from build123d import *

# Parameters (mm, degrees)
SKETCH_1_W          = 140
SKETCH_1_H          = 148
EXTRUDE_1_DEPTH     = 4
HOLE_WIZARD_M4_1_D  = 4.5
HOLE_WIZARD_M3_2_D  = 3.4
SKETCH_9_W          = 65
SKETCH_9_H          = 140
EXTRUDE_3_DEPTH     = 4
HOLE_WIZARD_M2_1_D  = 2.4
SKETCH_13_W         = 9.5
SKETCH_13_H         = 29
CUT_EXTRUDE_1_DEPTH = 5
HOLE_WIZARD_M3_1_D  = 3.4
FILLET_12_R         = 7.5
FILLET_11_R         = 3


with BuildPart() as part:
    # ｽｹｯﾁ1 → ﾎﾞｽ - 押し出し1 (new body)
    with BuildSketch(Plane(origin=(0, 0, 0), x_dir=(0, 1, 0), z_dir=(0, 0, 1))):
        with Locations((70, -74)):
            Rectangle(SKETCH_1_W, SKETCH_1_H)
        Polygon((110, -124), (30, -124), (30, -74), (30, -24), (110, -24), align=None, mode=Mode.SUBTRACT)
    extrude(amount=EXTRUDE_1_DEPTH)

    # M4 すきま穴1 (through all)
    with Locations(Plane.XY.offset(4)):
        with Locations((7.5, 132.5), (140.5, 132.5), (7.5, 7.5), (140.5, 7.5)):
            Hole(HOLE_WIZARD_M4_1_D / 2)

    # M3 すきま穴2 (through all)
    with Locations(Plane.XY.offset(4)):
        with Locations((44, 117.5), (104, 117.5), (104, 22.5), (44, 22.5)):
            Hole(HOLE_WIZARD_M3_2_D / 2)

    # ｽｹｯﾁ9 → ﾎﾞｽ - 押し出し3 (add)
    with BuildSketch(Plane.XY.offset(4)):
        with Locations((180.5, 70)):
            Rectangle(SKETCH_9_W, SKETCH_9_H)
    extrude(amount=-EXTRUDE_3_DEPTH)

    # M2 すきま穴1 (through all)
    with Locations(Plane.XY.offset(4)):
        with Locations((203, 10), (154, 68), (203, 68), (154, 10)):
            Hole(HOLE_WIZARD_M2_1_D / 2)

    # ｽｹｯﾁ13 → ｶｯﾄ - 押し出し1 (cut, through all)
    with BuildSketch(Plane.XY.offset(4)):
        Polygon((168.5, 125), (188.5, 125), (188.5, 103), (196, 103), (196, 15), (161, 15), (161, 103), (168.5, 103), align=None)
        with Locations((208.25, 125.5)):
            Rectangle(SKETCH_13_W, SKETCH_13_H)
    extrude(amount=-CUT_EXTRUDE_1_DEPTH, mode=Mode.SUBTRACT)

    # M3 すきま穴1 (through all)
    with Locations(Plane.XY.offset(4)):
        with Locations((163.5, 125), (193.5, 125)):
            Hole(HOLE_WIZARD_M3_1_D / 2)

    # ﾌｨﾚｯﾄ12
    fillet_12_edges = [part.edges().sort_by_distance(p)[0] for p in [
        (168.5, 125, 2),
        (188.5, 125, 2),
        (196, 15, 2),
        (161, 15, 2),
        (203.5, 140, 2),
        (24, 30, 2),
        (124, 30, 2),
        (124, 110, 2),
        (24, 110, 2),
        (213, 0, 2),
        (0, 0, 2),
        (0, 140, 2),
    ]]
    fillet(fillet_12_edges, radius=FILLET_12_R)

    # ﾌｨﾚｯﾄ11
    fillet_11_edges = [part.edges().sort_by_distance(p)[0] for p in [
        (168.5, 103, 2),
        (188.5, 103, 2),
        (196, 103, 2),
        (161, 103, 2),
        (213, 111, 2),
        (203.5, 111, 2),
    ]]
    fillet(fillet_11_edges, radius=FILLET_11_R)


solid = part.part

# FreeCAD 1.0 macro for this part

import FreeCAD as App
import Part
import Sketcher
from FreeCAD import Vector


def edges_at(feature, points):
    """Names of the edges that pass closest to the given points."""
    edges = feature.Shape.Edges
    near = lambda p: min(range(len(edges)), key=lambda i: edges[i].distToShape(Part.Vertex(*p))[0])
    return sorted({f"Edge{near(p) + 1}" for p in points})


def add_polygon(sketch, points):
    """Adds a closed chain of lines whose ends are joined by coincident constraints."""
    first, n = sketch.GeometryCount, len(points)
    for a, b in zip(points, points[1:] + points[:1]):
        sketch.addGeometry(Part.LineSegment(App.Vector(*a, 0), App.Vector(*b, 0)), False)
    for i in range(n):
        sketch.addConstraint(Sketcher.Constraint("Coincident", first + i, 2, first + (i + 1) % n, 1))

doc = App.newDocument("Part")
body = doc.addObject("PartDesign::Body", "Body")

sketch1 = body.newObject("Sketcher::SketchObject", "Sketch")
sketch1.AttachmentSupport = (doc.getObject("XY_Plane"), [""])
sketch1.MapMode = "FlatFace"
add_polygon(sketch1, [(0, 0), (148, 0), (148, 140), (0, 140)])
add_polygon(sketch1, [(24, 110), (124, 110), (124, 30), (24, 30)])
sketch1.addConstraint(Sketcher.Constraint("Horizontal", 0))
sketch1.addConstraint(Sketcher.Constraint("Vertical", 1))
sketch1.addConstraint(Sketcher.Constraint("Horizontal", 2))
sketch1.addConstraint(Sketcher.Constraint("Vertical", 3))
sketch1.addConstraint(Sketcher.Constraint("Horizontal", 4))
sketch1.addConstraint(Sketcher.Constraint("Vertical", 5))
sketch1.addConstraint(Sketcher.Constraint("Horizontal", 6))
sketch1.addConstraint(Sketcher.Constraint("Vertical", 7))
sketch1.addConstraint(Sketcher.Constraint("Coincident", 3, 2, -1, 1))
sketch1.addConstraint(Sketcher.Constraint("DistanceX", 0, 1, 0, 2, 148.0))
sketch1.addConstraint(Sketcher.Constraint("DistanceX", 4, 1, 4, 2, 100.0))
sketch1.addConstraint(Sketcher.Constraint("DistanceY", 1, 1, 1, 2, 140.0))
sketch1.addConstraint(Sketcher.Constraint("DistanceY", 5, 2, 5, 1, 80.0))
sketch1.addConstraint(Sketcher.Constraint("DistanceX", -1, 1, 4, 2, 124.0))
sketch1.addConstraint(Sketcher.Constraint("DistanceY", -1, 1, 4, 2, 110.0))
pad1 = body.newObject("PartDesign::Pad", "Pad")
pad1.Profile = sketch1
pad1.Length = 4

sketch2 = body.newObject("Sketcher::SketchObject", "Sketch001")
sketch2.AttachmentSupport = (doc.getObject("XY_Plane"), [""])
sketch2.MapMode = "FlatFace"
sketch2.AttachmentOffset = App.Placement(Vector(0, 0, 4), App.Rotation())
sketch2.addGeometry(Part.Circle(Vector(7.5, 132.5, 0), Vector(0, 0, 1), 2.25), False)
sketch2.addGeometry(Part.Circle(Vector(140.5, 132.5, 0), Vector(0, 0, 1), 2.25), False)
sketch2.addGeometry(Part.Circle(Vector(7.5, 7.5, 0), Vector(0, 0, 1), 2.25), False)
sketch2.addGeometry(Part.Circle(Vector(140.5, 7.5, 0), Vector(0, 0, 1), 2.25), False)
sketch2.addConstraint(Sketcher.Constraint("Equal", 0, 1))
sketch2.addConstraint(Sketcher.Constraint("Equal", 1, 2))
sketch2.addConstraint(Sketcher.Constraint("Equal", 2, 3))
sketch2.addConstraint(Sketcher.Constraint("Horizontal", 0, 3, 1, 3))
sketch2.addConstraint(Sketcher.Constraint("Horizontal", 2, 3, 3, 3))
sketch2.addConstraint(Sketcher.Constraint("Vertical", 0, 3, 2, 3))
sketch2.addConstraint(Sketcher.Constraint("Vertical", 1, 3, 3, 3))
sketch2.addConstraint(Sketcher.Constraint("Diameter", 0, 4.5))
sketch2.addConstraint(Sketcher.Constraint("DistanceX", 0, 3, 1, 3, 133.0))
sketch2.addConstraint(Sketcher.Constraint("DistanceY", 2, 3, 0, 3, 125.0))
sketch2.addConstraint(Sketcher.Constraint("DistanceX", -1, 1, 0, 3, 7.5))
sketch2.addConstraint(Sketcher.Constraint("DistanceY", -1, 1, 0, 3, 132.5))
doc.recompute()
hole = body.newObject("PartDesign::Hole", "Hole")
hole.Profile = sketch2
hole.ThreadType = "None"
hole.Diameter = 4.5
hole.DepthType = "ThroughAll"

sketch3 = body.newObject("Sketcher::SketchObject", "Sketch002")
sketch3.AttachmentSupport = (doc.getObject("XY_Plane"), [""])
sketch3.MapMode = "FlatFace"
sketch3.AttachmentOffset = App.Placement(Vector(0, 0, 4), App.Rotation())
sketch3.addGeometry(Part.Circle(Vector(44, 117.5, 0), Vector(0, 0, 1), 1.7), False)
sketch3.addGeometry(Part.Circle(Vector(104, 117.5, 0), Vector(0, 0, 1), 1.7), False)
sketch3.addGeometry(Part.Circle(Vector(104, 22.5, 0), Vector(0, 0, 1), 1.7), False)
sketch3.addGeometry(Part.Circle(Vector(44, 22.5, 0), Vector(0, 0, 1), 1.7), False)
sketch3.addConstraint(Sketcher.Constraint("Equal", 0, 1))
sketch3.addConstraint(Sketcher.Constraint("Equal", 1, 2))
sketch3.addConstraint(Sketcher.Constraint("Equal", 2, 3))
sketch3.addConstraint(Sketcher.Constraint("Horizontal", 0, 3, 1, 3))
sketch3.addConstraint(Sketcher.Constraint("Horizontal", 2, 3, 3, 3))
sketch3.addConstraint(Sketcher.Constraint("Vertical", 1, 3, 2, 3))
sketch3.addConstraint(Sketcher.Constraint("Vertical", 0, 3, 3, 3))
sketch3.addConstraint(Sketcher.Constraint("Diameter", 0, 3.4))
sketch3.addConstraint(Sketcher.Constraint("DistanceX", -1, 1, 0, 3, 44.0))
sketch3.addConstraint(Sketcher.Constraint("DistanceX", -1, 1, 1, 3, 104.0))
sketch3.addConstraint(Sketcher.Constraint("DistanceY", 2, 3, 1, 3, 95.0))
sketch3.addConstraint(Sketcher.Constraint("DistanceY", -1, 1, 0, 3, 117.5))
doc.recompute()
hole2 = body.newObject("PartDesign::Hole", "Hole001")
hole2.Profile = sketch3
hole2.ThreadType = "None"
hole2.Diameter = 3.4
hole2.DepthType = "ThroughAll"

sketch4 = body.newObject("Sketcher::SketchObject", "Sketch003")
sketch4.AttachmentSupport = (doc.getObject("XY_Plane"), [""])
sketch4.MapMode = "FlatFace"
sketch4.AttachmentOffset = App.Placement(Vector(0, 0, 4), App.Rotation())
add_polygon(sketch4, [(148, 140), (148, 0), (213, 0), (213, 140)])
sketch4.addConstraint(Sketcher.Constraint("Vertical", 0))
sketch4.addConstraint(Sketcher.Constraint("Horizontal", 1))
sketch4.addConstraint(Sketcher.Constraint("Vertical", 2))
sketch4.addConstraint(Sketcher.Constraint("Horizontal", 3))
sketch4.addConstraint(Sketcher.Constraint("PointOnObject", 0, 2, -1))
sketch4.addConstraint(Sketcher.Constraint("DistanceX", 1, 1, 1, 2, 65.0))
sketch4.addConstraint(Sketcher.Constraint("DistanceY", 0, 2, 0, 1, 140.0))
sketch4.addConstraint(Sketcher.Constraint("DistanceX", -1, 1, 0, 2, 148.0))
pad2 = body.newObject("PartDesign::Pad", "Pad001")
pad2.Profile = sketch4
pad2.Length = 4
pad2.Reversed = True

sketch5 = body.newObject("Sketcher::SketchObject", "Sketch004")
sketch5.AttachmentSupport = (doc.getObject("XY_Plane"), [""])
sketch5.MapMode = "FlatFace"
sketch5.AttachmentOffset = App.Placement(Vector(0, 0, 4), App.Rotation())
sketch5.addGeometry(Part.Circle(Vector(203, 10, 0), Vector(0, 0, 1), 1.2), False)
sketch5.addGeometry(Part.Circle(Vector(154, 68, 0), Vector(0, 0, 1), 1.2), False)
sketch5.addGeometry(Part.Circle(Vector(203, 68, 0), Vector(0, 0, 1), 1.2), False)
sketch5.addGeometry(Part.Circle(Vector(154, 10, 0), Vector(0, 0, 1), 1.2), False)
sketch5.addConstraint(Sketcher.Constraint("Equal", 0, 1))
sketch5.addConstraint(Sketcher.Constraint("Equal", 1, 2))
sketch5.addConstraint(Sketcher.Constraint("Equal", 2, 3))
sketch5.addConstraint(Sketcher.Constraint("Horizontal", 1, 3, 2, 3))
sketch5.addConstraint(Sketcher.Constraint("Horizontal", 0, 3, 3, 3))
sketch5.addConstraint(Sketcher.Constraint("Vertical", 0, 3, 2, 3))
sketch5.addConstraint(Sketcher.Constraint("Vertical", 1, 3, 3, 3))
sketch5.addConstraint(Sketcher.Constraint("Diameter", 0, 2.4))
sketch5.addConstraint(Sketcher.Constraint("DistanceX", -1, 1, 0, 3, 203.0))
sketch5.addConstraint(Sketcher.Constraint("DistanceY", -1, 1, 0, 3, 10.0))
sketch5.addConstraint(Sketcher.Constraint("DistanceX", -1, 1, 1, 3, 154.0))
sketch5.addConstraint(Sketcher.Constraint("DistanceY", -1, 1, 1, 3, 68.0))
doc.recompute()
hole3 = body.newObject("PartDesign::Hole", "Hole002")
hole3.Profile = sketch5
hole3.ThreadType = "None"
hole3.Diameter = 2.4
hole3.DepthType = "ThroughAll"

sketch6 = body.newObject("Sketcher::SketchObject", "Sketch005")
sketch6.AttachmentSupport = (doc.getObject("XY_Plane"), [""])
sketch6.MapMode = "FlatFace"
sketch6.AttachmentOffset = App.Placement(Vector(0, 0, 4), App.Rotation())
add_polygon(sketch6, [(188.5, 125), (168.5, 125), (168.5, 103), (161, 103), (161, 15), (196, 15), (196, 103), (188.5, 103)])
add_polygon(sketch6, [(203.5, 140), (203.5, 111), (213, 111), (213, 140)])
sketch6.addConstraint(Sketcher.Constraint("Horizontal", 0))
sketch6.addConstraint(Sketcher.Constraint("Vertical", 1))
sketch6.addConstraint(Sketcher.Constraint("Horizontal", 2))
sketch6.addConstraint(Sketcher.Constraint("Vertical", 3))
sketch6.addConstraint(Sketcher.Constraint("Horizontal", 4))
sketch6.addConstraint(Sketcher.Constraint("Vertical", 5))
sketch6.addConstraint(Sketcher.Constraint("Horizontal", 6))
sketch6.addConstraint(Sketcher.Constraint("Vertical", 7))
sketch6.addConstraint(Sketcher.Constraint("Vertical", 8))
sketch6.addConstraint(Sketcher.Constraint("Horizontal", 9))
sketch6.addConstraint(Sketcher.Constraint("Vertical", 10))
sketch6.addConstraint(Sketcher.Constraint("Horizontal", 11))
sketch6.addConstraint(Sketcher.Constraint("Horizontal", 2, 2, 5, 2))
sketch6.addConstraint(Sketcher.Constraint("Equal", 2, 6))
sketch6.addConstraint(Sketcher.Constraint("DistanceX", 0, 2, 0, 1, 20.0))
sketch6.addConstraint(Sketcher.Constraint("DistanceX", 4, 1, 4, 2, 35.0))
sketch6.addConstraint(Sketcher.Constraint("DistanceY", 1, 2, 1, 1, 22.0))
sketch6.addConstraint(Sketcher.Constraint("DistanceY", 3, 2, 3, 1, 88.0))
sketch6.addConstraint(Sketcher.Constraint("DistanceY", 8, 2, 8, 1, 29.0))
sketch6.addConstraint(Sketcher.Constraint("DistanceX", 9, 1, 9, 2, 9.5))
sketch6.addConstraint(Sketcher.Constraint("DistanceY", -1, 1, 0, 2, 125.0))
sketch6.addConstraint(Sketcher.Constraint("DistanceX", -1, 1, 2, 2, 161.0))
sketch6.addConstraint(Sketcher.Constraint("DistanceY", -1, 1, 8, 2, 111.0))
sketch6.addConstraint(Sketcher.Constraint("DistanceX", -1, 1, 9, 2, 213.0))
pocket1 = body.newObject("PartDesign::Pocket", "Pocket")
pocket1.Profile = sketch6
pocket1.Type = "ThroughAll"

sketch7 = body.newObject("Sketcher::SketchObject", "Sketch006")
sketch7.AttachmentSupport = (doc.getObject("XY_Plane"), [""])
sketch7.MapMode = "FlatFace"
sketch7.AttachmentOffset = App.Placement(Vector(0, 0, 4), App.Rotation())
sketch7.addGeometry(Part.Circle(Vector(163.5, 125, 0), Vector(0, 0, 1), 1.7), False)
sketch7.addGeometry(Part.Circle(Vector(193.5, 125, 0), Vector(0, 0, 1), 1.7), False)
sketch7.addConstraint(Sketcher.Constraint("Equal", 0, 1))
sketch7.addConstraint(Sketcher.Constraint("Horizontal", 0, 3, 1, 3))
sketch7.addConstraint(Sketcher.Constraint("Diameter", 0, 3.4))
sketch7.addConstraint(Sketcher.Constraint("DistanceY", -1, 1, 0, 3, 125.0))
sketch7.addConstraint(Sketcher.Constraint("DistanceX", 0, 3, 1, 3, 30.0))
sketch7.addConstraint(Sketcher.Constraint("DistanceX", -1, 1, 0, 3, 163.5))
doc.recompute()
hole4 = body.newObject("PartDesign::Hole", "Hole003")
hole4.Profile = sketch7
hole4.ThreadType = "None"
hole4.Diameter = 3.4
hole4.DepthType = "ThroughAll"
doc.recompute()

fillet = body.newObject("PartDesign::Fillet", "Fillet")
fillet.Base = (hole4, edges_at(hole4, [
    (168.5, 125, 2),
    (188.5, 125, 2),
    (196, 15, 2),
    (161, 15, 2),
    (203.5, 140, 2),
    (24, 30, 2),
    (124, 30, 2),
    (124, 110, 2),
    (24, 110, 2),
    (213, 0, 2),
    (0, 0, 2),
    (0, 140, 2),
]))
fillet.Radius = 7.5
doc.recompute()

fillet2 = body.newObject("PartDesign::Fillet", "Fillet001")
fillet2.Base = (fillet, edges_at(fillet, [
    (168.5, 103, 2),
    (188.5, 103, 2),
    (196, 103, 2),
    (161, 103, 2),
    (213, 111, 2),
    (203.5, 111, 2),
]))
fillet2.Radius = 3

doc.recompute()
